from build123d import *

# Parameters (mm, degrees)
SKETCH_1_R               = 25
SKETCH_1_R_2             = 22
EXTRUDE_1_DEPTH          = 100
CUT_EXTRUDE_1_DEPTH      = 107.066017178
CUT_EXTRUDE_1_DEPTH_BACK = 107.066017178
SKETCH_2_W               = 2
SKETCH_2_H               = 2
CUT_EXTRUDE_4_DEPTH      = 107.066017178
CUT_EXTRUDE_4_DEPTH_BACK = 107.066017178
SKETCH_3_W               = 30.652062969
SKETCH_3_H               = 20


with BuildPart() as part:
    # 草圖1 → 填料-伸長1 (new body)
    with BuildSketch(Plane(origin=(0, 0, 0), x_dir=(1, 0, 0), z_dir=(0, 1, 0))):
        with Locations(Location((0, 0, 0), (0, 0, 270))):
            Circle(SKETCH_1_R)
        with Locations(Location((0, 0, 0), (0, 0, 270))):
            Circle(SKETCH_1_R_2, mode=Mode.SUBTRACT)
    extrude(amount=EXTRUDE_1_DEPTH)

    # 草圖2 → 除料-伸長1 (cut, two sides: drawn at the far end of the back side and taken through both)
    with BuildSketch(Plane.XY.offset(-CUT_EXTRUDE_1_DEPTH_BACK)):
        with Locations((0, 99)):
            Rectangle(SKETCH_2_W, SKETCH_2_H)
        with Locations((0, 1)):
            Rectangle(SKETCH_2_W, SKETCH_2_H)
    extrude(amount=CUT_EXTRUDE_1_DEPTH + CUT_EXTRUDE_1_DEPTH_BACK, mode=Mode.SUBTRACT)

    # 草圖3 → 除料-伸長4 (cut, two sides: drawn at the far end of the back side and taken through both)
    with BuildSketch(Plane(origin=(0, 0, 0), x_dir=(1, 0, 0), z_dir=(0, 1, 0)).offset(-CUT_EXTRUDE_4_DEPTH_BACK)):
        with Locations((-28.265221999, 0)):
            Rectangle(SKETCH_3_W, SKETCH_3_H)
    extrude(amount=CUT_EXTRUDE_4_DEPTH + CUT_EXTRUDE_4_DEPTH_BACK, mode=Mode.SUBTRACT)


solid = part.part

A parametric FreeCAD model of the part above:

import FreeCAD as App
import Part
import Sketcher
Q = App.Units.Quantity


def add_polygon(sketch, points):
    """Adds a closed chain of lines whose ends are joined by coincident constraints."""
    first, n = sketch.GeometryCount, len(points)
    for a, b in zip(points, points[1:] + points[:1]):
        sketch.addGeometry(Part.LineSegment(App.Vector(*a, 0), App.Vector(*b, 0)), False)
    for i in range(n):
        sketch.addConstraint(Sketcher.Constraint("Coincident", first + i, 2, first + (i + 1) % n, 1))

doc = App.newDocument("Part")
params = doc.addObject("Spreadsheet::Sheet", "Params")
for row, (alias, value) in enumerate([
    ("sketch1_diameter", "50 mm"),
    ("sketch1_diameter2", "44 mm"),
    ("pad1_length", "100 mm"),
    ("sketch2_width", "2 mm"),
    ("sketch3_height", "20 mm"),
], start=1):
    params.set(f"A{row}", alias)
    params.set(f"B{row}", "=" + value)
    params.setAlias(f"B{row}", alias)

body = doc.addObject("PartDesign::Body", "Body")

# Sketch on XZ plane
sketch1 = doc.addObject("Sketcher::SketchObject", "Sketch")
body.addObject(sketch1)
sketch1.AttachmentSupport = (doc.XZ_Plane, [""])
sketch1.MapMode = "FlatFace"
sketch1.addGeometry(Part.Circle(App.Vector(0, 0, 0), App.Vector(0, 0, 1), 25), False)
sketch1.addGeometry(Part.Circle(App.Vector(0, 0, 0), App.Vector(0, 0, 1), 22), False)
sketch1.addConstraint(Sketcher.Constraint("Coincident", 0, 3, -1, 1))
sketch1.addConstraint(Sketcher.Constraint("Coincident", 1, 3, -1, 1))
sketch1.addConstraint(Sketcher.Constraint("Diameter", 0, Q("50 mm")))
sketch1.addConstraint(Sketcher.Constraint("Diameter", 1, Q("44 mm")))
sketch1.setExpression("Constraints[2]", "Params.sketch1_diameter")
sketch1.setExpression("Constraints[3]", "Params.sketch1_diameter2")
pad1 = doc.addObject("PartDesign::Pad", "Pad")
body.addObject(pad1)
pad1.Profile = sketch1
pad1.setExpression("Length", "Params.pad1_length")
pad1.Reversed = True

# Sketch on XY plane
sketch2 = doc.addObject("Sketcher::SketchObject", "Sketch001")
body.addObject(sketch2)
sketch2.AttachmentSupport = (doc.XY_Plane, [""])
sketch2.MapMode = "FlatFace"
add_polygon(sketch2, [(-1, 100), (-1, 98), (1, 98), (1, 100)])  # lines 0-3
add_polygon(sketch2, [(-1, 2), (-1, 0), (1, 0), (1, 2)])  # lines 4-7
sketch2.addConstraint(Sketcher.Constraint("Vertical", 0))
sketch2.addConstraint(Sketcher.Constraint("Horizontal", 1))
sketch2.addConstraint(Sketcher.Constraint("Vertical", 2))
sketch2.addConstraint(Sketcher.Constraint("Horizontal", 3))
sketch2.addConstraint(Sketcher.Constraint("Vertical", 4))
sketch2.addConstraint(Sketcher.Constraint("Horizontal", 5))
sketch2.addConstraint(Sketcher.Constraint("Vertical", 6))
sketch2.addConstraint(Sketcher.Constraint("Horizontal", 7))
sketch2.addConstraint(Sketcher.Constraint("Symmetric", 4, 2, 5, 2, -1, 1))
sketch2.addConstraint(Sketcher.Constraint("Vertical", 3, 2, 4, 2))
sketch2.addConstraint(Sketcher.Constraint("Vertical", 2, 2, 5, 2))
sketch2.addConstraint(Sketcher.Constraint("Equal", 7, 0))
sketch2.addConstraint(Sketcher.Constraint("Equal", 2, 4))
sketch2.addConstraint(Sketcher.Constraint("DistanceX", 1, 1, 1, 2, Q("2 mm")))
sketch2.addConstraint(Sketcher.Constraint("DistanceY", -1, 1, 0, 2, Q("98 mm")))
sketch2.setExpression("Constraints[21]", "Params.sketch2_width")
pocket1 = doc.addObject("PartDesign::Pocket", "Pocket")
body.addObject(pocket1)
pocket1.Profile = sketch2
pocket1.Type = "ThroughAll"
pocket1.Midplane = True

# Sketch on XZ plane
sketch3 = doc.addObject("Sketcher::SketchObject", "Sketch002")
body.addObject(sketch3)
sketch3.AttachmentSupport = (doc.XZ_Plane, [""])
sketch3.MapMode = "FlatFace"
add_polygon(sketch3, [(-43.591253, -10), (-43.591253, 10), (-12.939191, 10), (-12.939191, -10)])  # lines 0-3
sketch3.addConstraint(Sketcher.Constraint("Vertical", 0))
sketch3.addConstraint(Sketcher.Constraint("Horizontal", 1))
sketch3.addConstraint(Sketcher.Constraint("Vertical", 2))
sketch3.addConstraint(Sketcher.Constraint("Horizontal", 3))
sketch3.addConstraint(Sketcher.Constraint("DistanceY", 0, 1, 0, 2, Q("20 mm")))
sketch3.addConstraint(Sketcher.Constraint("DistanceY", -1, 1, 0, 2, Q("10 mm")))
sketch3.addConstraint(Sketcher.Constraint("DistanceX", 1, 1, 1, 2, Q("30.652063 mm")))
sketch3.addConstraint(Sketcher.Constraint("DistanceX", 1, 2, -1, 1, Q("12.939191 mm")))
sketch3.setExpression("Constraints[8]", "Params.sketch3_height")
pocket2 = doc.addObject("PartDesign::Pocket", "Pocket001")
body.addObject(pocket2)
pocket2.Profile = sketch3
pocket2.Type = "ThroughAll"
pocket2.Midplane = True

doc.recompute()
